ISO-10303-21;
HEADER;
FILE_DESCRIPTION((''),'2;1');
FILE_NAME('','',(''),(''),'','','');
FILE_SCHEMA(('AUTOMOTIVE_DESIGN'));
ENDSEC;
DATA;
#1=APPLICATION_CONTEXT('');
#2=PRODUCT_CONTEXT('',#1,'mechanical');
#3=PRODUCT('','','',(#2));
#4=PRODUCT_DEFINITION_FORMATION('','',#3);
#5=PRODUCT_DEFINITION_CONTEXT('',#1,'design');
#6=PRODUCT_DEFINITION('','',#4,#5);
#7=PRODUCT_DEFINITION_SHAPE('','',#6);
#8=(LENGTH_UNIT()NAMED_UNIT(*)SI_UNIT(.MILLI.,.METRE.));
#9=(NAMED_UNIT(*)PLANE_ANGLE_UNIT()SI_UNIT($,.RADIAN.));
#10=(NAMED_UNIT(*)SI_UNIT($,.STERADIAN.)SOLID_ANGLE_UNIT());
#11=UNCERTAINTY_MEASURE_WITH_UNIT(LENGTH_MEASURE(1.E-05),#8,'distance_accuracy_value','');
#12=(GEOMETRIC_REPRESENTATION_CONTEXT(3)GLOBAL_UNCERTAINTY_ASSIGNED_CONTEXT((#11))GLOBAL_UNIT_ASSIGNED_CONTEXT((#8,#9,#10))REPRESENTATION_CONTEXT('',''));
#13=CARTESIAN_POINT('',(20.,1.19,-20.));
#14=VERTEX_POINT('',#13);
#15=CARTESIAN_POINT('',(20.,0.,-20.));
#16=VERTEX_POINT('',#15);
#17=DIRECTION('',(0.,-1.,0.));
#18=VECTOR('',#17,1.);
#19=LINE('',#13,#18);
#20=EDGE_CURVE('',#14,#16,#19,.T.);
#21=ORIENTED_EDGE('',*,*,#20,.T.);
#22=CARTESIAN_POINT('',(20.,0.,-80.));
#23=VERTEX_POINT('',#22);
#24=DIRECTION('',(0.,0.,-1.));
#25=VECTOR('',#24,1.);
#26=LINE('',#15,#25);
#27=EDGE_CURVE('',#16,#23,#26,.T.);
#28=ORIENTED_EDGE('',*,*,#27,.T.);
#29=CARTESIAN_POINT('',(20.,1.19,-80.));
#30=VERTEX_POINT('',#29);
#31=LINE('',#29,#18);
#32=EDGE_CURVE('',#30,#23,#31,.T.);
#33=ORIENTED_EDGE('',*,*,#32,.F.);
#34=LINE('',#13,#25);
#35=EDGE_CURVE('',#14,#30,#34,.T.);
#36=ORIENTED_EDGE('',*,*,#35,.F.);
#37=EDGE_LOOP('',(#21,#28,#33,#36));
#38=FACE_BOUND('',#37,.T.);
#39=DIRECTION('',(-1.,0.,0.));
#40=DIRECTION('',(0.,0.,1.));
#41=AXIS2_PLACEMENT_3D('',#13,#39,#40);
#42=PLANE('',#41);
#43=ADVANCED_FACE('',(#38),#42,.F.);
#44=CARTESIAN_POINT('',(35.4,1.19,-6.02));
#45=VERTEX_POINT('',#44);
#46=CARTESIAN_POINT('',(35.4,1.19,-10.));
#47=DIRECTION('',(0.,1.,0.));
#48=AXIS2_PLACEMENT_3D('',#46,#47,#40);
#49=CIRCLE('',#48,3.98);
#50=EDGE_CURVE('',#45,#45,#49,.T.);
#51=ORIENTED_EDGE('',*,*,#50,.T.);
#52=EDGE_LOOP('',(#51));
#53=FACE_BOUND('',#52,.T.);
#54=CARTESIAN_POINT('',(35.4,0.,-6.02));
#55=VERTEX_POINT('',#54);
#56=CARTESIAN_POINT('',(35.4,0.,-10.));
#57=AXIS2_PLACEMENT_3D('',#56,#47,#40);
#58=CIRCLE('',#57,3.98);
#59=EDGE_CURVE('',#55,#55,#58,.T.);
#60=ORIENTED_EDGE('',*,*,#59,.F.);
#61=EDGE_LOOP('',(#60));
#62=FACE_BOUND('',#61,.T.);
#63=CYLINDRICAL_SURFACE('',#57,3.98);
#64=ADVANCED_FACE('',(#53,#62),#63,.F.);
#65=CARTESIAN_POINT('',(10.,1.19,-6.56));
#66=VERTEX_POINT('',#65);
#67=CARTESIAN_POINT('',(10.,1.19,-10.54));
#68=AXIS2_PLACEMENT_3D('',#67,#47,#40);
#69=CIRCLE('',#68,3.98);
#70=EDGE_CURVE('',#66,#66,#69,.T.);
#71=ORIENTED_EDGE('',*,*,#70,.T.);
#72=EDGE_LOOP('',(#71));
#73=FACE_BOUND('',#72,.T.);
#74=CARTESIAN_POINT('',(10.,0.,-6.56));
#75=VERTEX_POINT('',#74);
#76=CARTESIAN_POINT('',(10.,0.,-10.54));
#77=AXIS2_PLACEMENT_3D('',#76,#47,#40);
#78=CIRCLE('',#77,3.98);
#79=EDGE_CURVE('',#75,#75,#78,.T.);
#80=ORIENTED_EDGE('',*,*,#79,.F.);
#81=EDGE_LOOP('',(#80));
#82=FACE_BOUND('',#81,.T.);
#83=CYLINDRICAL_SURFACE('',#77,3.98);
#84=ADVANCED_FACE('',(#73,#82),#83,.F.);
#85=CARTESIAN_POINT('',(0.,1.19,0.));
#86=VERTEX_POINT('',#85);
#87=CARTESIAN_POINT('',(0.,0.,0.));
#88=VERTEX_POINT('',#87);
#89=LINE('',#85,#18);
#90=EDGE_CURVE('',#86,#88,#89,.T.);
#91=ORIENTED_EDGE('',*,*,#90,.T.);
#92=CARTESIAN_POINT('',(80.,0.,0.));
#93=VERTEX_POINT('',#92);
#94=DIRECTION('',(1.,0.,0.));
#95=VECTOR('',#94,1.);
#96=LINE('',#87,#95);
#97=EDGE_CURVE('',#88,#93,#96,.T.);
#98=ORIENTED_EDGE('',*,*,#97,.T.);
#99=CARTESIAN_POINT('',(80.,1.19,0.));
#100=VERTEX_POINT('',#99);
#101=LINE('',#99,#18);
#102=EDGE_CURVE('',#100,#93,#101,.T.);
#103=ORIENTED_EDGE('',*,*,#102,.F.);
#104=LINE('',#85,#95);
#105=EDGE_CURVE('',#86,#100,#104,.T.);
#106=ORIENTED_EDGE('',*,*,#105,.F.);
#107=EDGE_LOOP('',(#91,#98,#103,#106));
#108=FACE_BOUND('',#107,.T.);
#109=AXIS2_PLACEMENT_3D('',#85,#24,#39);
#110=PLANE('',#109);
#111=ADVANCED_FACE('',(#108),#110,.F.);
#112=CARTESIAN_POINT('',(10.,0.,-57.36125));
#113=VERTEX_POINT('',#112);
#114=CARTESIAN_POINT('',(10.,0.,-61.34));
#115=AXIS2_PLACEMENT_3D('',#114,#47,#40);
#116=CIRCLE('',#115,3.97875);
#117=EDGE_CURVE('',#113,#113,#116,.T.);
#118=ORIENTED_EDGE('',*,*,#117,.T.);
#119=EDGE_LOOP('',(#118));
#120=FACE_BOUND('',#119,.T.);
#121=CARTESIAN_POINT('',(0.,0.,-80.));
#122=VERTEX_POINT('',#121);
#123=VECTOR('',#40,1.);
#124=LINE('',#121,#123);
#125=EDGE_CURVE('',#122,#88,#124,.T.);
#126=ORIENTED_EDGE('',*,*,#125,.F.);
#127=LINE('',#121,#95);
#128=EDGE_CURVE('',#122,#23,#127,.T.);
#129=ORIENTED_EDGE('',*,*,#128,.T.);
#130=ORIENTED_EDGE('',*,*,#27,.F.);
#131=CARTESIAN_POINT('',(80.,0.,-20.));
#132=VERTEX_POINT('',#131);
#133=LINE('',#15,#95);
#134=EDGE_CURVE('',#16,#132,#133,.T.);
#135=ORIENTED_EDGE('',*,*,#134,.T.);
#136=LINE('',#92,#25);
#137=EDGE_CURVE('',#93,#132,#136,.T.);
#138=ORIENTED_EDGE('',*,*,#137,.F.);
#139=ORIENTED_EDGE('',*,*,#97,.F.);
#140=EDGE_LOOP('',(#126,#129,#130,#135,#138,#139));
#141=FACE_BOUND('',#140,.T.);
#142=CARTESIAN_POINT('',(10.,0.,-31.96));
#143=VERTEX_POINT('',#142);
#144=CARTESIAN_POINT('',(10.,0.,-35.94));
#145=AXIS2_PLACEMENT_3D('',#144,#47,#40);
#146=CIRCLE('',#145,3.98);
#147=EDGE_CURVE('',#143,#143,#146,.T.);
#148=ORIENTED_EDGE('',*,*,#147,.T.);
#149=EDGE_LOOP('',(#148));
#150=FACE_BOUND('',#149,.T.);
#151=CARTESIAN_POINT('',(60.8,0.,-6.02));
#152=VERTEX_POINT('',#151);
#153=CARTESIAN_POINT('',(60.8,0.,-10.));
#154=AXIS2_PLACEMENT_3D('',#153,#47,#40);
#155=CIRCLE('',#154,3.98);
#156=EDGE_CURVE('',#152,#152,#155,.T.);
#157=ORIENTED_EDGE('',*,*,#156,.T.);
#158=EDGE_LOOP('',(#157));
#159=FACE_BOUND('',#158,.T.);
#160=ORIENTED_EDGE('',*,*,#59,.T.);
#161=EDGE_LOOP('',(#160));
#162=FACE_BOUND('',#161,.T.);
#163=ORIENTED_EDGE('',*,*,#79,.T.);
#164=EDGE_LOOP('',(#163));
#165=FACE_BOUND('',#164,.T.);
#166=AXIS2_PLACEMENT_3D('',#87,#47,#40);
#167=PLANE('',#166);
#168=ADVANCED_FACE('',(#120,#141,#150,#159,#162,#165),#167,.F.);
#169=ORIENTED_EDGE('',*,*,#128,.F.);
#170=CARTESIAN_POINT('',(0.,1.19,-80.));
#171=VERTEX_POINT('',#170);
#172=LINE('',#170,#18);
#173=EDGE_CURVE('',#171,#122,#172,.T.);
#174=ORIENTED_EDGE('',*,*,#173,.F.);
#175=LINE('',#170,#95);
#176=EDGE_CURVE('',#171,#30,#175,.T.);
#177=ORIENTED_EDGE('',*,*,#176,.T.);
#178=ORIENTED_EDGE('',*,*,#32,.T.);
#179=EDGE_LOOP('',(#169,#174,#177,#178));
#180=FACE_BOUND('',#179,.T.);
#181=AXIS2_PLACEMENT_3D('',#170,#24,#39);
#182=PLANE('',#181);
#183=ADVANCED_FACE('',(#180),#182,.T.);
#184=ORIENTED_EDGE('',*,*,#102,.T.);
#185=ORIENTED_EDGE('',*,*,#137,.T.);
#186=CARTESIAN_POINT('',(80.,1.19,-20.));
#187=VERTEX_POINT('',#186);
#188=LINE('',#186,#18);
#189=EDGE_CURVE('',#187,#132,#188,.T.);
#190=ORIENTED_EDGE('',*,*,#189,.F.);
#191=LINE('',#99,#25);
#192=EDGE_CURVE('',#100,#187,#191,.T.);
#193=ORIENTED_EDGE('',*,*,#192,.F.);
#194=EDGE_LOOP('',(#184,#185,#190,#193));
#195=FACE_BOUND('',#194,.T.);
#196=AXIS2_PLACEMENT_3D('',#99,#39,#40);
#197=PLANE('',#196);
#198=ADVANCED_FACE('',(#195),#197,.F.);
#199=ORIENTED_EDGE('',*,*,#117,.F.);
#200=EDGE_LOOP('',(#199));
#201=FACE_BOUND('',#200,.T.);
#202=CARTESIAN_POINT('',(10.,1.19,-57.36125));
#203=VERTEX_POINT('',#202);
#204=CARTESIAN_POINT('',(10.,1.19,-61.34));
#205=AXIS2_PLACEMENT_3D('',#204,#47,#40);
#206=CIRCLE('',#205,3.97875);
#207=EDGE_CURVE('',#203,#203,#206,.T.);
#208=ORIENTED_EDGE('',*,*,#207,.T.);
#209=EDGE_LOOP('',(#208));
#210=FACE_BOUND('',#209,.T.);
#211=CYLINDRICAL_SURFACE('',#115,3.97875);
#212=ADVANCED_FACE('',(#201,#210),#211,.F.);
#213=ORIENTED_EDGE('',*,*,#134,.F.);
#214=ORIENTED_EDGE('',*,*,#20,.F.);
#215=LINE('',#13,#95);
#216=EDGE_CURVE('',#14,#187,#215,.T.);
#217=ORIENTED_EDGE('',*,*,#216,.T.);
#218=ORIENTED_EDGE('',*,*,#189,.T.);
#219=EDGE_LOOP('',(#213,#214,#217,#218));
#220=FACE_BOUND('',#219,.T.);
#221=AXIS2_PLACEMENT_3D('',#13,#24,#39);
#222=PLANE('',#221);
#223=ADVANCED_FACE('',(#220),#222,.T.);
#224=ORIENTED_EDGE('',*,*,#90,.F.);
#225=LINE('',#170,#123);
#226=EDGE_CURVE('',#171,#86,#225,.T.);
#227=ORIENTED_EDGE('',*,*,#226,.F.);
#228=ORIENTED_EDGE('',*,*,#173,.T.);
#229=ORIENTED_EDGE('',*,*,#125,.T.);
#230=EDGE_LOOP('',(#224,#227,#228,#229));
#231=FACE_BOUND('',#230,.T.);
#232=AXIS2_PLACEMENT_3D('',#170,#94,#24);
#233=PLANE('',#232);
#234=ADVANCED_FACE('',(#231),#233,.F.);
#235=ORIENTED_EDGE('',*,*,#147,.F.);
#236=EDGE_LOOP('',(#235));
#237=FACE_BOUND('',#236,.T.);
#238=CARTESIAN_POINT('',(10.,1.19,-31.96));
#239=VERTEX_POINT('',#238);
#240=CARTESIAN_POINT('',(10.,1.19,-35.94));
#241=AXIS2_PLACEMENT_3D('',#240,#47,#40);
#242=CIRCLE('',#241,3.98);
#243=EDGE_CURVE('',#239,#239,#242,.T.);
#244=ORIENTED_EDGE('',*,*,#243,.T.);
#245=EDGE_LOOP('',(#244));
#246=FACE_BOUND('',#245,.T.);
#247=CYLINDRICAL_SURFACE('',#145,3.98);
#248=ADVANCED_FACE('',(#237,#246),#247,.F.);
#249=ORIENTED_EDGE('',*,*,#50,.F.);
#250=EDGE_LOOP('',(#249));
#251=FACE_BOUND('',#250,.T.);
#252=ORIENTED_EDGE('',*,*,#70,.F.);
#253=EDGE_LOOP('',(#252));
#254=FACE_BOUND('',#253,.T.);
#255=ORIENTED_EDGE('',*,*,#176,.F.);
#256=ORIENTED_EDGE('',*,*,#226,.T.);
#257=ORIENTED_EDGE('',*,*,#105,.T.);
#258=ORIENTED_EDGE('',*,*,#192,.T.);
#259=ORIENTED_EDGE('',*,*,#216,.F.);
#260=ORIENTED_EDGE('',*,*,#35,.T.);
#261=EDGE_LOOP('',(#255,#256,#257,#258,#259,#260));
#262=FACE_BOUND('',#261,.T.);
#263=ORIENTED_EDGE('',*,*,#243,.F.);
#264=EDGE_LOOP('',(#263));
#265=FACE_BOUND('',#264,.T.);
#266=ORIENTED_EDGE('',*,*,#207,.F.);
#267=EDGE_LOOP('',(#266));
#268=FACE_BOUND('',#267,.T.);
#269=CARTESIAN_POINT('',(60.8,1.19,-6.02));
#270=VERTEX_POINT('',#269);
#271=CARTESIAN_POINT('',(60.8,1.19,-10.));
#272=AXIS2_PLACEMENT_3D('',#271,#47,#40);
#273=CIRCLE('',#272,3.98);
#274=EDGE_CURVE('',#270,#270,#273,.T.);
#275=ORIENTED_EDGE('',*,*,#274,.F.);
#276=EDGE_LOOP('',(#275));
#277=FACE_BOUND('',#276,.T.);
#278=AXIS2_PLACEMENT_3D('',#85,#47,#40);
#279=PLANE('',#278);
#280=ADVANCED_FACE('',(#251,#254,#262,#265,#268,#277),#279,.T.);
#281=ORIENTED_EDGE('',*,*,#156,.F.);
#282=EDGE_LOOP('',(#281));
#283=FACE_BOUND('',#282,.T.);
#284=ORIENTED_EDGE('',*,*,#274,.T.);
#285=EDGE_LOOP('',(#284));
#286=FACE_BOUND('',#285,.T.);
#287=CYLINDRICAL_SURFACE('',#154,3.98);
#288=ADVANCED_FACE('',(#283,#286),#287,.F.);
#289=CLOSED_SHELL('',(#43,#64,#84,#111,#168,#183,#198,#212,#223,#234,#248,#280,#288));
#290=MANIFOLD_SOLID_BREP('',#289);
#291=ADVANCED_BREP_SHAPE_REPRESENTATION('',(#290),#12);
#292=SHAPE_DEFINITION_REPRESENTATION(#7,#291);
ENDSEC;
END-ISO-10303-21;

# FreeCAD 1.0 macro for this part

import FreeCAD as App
import Part
import Sketcher
Q = App.Units.Quantity


def add_polygon(sketch, points):
    """Adds a closed chain of lines whose ends are joined by coincident constraints."""
    first, n = sketch.GeometryCount, len(points)
    for a, b in zip(points, points[1:] + points[:1]):
        sketch.addGeometry(Part.LineSegment(App.Vector(*a, 0), App.Vector(*b, 0)), False)
    for i in range(n):
        sketch.addConstraint(Sketcher.Constraint("Coincident", first + i, 2, first + (i + 1) % n, 1))

doc = App.newDocument("Part")
body = doc.addObject("PartDesign::Body", "Body")

sketch1 = body.newObject("Sketcher::SketchObject", "Sketch")
sketch1.AttachmentSupport = (doc.getObject("XZ_Plane"), [""])
sketch1.MapMode = "FlatFace"
add_polygon(sketch1, [(0, 0), (80, 0), (80, -20), (20, -20), (20, -80), (0, -80)])
sketch1.addConstraint([
    Sketcher.Constraint("Horizontal", 0),
    Sketcher.Constraint("Vertical", 1),
    Sketcher.Constraint("Horizontal", 2),
    Sketcher.Constraint("Vertical", 3),
    Sketcher.Constraint("Horizontal", 4),
    Sketcher.Constraint("Vertical", 5),
    Sketcher.Constraint("Coincident", 5, 2, -1, 1),
    Sketcher.Constraint("Equal", 4, 1),
    Sketcher.Constraint("Equal", 2, 3),
    Sketcher.Constraint("DistanceX", 0, 1, 0, 2, Q("80 mm")),
    Sketcher.Constraint("DistanceX", 2, 2, 2, 1, Q("60 mm")),
])
pad1 = body.newObject("PartDesign::Pad", "Pad")
pad1.Profile = sketch1
pad1.Length = 1.19
pad1.Reversed = True

sketch2 = body.newObject("Sketcher::SketchObject", "Sketch001")
sketch2.AttachmentSupport = (doc.getObject("XZ_Plane"), [""])
sketch2.MapMode = "FlatFace"
sketch2.AttachmentOffset = App.Placement(App.Vector(0, 0, -1.19), App.Rotation())
sketch2.addGeometry([
    Part.Circle(App.Vector(10, -61.34, 0), App.Vector(0, 0, 1), 3.97875),
    Part.Circle(App.Vector(10, -35.94, 0), App.Vector(0, 0, 1), 3.98),
    Part.Circle(App.Vector(10, -10.54, 0), App.Vector(0, 0, 1), 3.98),
    Part.Circle(App.Vector(35.4, -10, 0), App.Vector(0, 0, 1), 3.98),
    Part.Circle(App.Vector(60.8, -10, 0), App.Vector(0, 0, 1), 3.98),
], False)
sketch2.addConstraint([
    Sketcher.Constraint("Equal", 1, 2),
    Sketcher.Constraint("Equal", 2, 3),
    Sketcher.Constraint("Equal", 3, 4),
    Sketcher.Constraint("Horizontal", 3, 3, 4, 3),
    Sketcher.Constraint("Vertical", 0, 3, 1, 3),
    Sketcher.Constraint("Vertical", 1, 3, 2, 3),
    Sketcher.Constraint("Diameter", 1, Q("7.96 mm")),
    Sketcher.Constraint("DistanceX", -1, 1, 0, 3, Q("10 mm")),
    Sketcher.Constraint("DistanceY", 3, 3, -1, 1, Q("10 mm")),
    Sketcher.Constraint("Diameter", 0, Q("7.9575 mm")),
    Sketcher.Constraint("DistanceX", -1, 1, 3, 3, Q("35.4 mm")),
    Sketcher.Constraint("DistanceX", -1, 1, 4, 3, Q("60.8 mm")),
    Sketcher.Constraint("DistanceY", 0, 3, 1, 3, Q("25.4 mm")),
    Sketcher.Constraint("DistanceY", 1, 3, 2, 3, Q("25.4 mm")),
    Sketcher.Constraint("DistanceY", 0, 3, -1, 1, Q("61.34 mm")),
])
pocket1 = body.newObject("PartDesign::Pocket", "Pocket")
pocket1.Profile = sketch2
pocket1.Length = 1.19
pocket1.Reversed = True

doc.recompute()
